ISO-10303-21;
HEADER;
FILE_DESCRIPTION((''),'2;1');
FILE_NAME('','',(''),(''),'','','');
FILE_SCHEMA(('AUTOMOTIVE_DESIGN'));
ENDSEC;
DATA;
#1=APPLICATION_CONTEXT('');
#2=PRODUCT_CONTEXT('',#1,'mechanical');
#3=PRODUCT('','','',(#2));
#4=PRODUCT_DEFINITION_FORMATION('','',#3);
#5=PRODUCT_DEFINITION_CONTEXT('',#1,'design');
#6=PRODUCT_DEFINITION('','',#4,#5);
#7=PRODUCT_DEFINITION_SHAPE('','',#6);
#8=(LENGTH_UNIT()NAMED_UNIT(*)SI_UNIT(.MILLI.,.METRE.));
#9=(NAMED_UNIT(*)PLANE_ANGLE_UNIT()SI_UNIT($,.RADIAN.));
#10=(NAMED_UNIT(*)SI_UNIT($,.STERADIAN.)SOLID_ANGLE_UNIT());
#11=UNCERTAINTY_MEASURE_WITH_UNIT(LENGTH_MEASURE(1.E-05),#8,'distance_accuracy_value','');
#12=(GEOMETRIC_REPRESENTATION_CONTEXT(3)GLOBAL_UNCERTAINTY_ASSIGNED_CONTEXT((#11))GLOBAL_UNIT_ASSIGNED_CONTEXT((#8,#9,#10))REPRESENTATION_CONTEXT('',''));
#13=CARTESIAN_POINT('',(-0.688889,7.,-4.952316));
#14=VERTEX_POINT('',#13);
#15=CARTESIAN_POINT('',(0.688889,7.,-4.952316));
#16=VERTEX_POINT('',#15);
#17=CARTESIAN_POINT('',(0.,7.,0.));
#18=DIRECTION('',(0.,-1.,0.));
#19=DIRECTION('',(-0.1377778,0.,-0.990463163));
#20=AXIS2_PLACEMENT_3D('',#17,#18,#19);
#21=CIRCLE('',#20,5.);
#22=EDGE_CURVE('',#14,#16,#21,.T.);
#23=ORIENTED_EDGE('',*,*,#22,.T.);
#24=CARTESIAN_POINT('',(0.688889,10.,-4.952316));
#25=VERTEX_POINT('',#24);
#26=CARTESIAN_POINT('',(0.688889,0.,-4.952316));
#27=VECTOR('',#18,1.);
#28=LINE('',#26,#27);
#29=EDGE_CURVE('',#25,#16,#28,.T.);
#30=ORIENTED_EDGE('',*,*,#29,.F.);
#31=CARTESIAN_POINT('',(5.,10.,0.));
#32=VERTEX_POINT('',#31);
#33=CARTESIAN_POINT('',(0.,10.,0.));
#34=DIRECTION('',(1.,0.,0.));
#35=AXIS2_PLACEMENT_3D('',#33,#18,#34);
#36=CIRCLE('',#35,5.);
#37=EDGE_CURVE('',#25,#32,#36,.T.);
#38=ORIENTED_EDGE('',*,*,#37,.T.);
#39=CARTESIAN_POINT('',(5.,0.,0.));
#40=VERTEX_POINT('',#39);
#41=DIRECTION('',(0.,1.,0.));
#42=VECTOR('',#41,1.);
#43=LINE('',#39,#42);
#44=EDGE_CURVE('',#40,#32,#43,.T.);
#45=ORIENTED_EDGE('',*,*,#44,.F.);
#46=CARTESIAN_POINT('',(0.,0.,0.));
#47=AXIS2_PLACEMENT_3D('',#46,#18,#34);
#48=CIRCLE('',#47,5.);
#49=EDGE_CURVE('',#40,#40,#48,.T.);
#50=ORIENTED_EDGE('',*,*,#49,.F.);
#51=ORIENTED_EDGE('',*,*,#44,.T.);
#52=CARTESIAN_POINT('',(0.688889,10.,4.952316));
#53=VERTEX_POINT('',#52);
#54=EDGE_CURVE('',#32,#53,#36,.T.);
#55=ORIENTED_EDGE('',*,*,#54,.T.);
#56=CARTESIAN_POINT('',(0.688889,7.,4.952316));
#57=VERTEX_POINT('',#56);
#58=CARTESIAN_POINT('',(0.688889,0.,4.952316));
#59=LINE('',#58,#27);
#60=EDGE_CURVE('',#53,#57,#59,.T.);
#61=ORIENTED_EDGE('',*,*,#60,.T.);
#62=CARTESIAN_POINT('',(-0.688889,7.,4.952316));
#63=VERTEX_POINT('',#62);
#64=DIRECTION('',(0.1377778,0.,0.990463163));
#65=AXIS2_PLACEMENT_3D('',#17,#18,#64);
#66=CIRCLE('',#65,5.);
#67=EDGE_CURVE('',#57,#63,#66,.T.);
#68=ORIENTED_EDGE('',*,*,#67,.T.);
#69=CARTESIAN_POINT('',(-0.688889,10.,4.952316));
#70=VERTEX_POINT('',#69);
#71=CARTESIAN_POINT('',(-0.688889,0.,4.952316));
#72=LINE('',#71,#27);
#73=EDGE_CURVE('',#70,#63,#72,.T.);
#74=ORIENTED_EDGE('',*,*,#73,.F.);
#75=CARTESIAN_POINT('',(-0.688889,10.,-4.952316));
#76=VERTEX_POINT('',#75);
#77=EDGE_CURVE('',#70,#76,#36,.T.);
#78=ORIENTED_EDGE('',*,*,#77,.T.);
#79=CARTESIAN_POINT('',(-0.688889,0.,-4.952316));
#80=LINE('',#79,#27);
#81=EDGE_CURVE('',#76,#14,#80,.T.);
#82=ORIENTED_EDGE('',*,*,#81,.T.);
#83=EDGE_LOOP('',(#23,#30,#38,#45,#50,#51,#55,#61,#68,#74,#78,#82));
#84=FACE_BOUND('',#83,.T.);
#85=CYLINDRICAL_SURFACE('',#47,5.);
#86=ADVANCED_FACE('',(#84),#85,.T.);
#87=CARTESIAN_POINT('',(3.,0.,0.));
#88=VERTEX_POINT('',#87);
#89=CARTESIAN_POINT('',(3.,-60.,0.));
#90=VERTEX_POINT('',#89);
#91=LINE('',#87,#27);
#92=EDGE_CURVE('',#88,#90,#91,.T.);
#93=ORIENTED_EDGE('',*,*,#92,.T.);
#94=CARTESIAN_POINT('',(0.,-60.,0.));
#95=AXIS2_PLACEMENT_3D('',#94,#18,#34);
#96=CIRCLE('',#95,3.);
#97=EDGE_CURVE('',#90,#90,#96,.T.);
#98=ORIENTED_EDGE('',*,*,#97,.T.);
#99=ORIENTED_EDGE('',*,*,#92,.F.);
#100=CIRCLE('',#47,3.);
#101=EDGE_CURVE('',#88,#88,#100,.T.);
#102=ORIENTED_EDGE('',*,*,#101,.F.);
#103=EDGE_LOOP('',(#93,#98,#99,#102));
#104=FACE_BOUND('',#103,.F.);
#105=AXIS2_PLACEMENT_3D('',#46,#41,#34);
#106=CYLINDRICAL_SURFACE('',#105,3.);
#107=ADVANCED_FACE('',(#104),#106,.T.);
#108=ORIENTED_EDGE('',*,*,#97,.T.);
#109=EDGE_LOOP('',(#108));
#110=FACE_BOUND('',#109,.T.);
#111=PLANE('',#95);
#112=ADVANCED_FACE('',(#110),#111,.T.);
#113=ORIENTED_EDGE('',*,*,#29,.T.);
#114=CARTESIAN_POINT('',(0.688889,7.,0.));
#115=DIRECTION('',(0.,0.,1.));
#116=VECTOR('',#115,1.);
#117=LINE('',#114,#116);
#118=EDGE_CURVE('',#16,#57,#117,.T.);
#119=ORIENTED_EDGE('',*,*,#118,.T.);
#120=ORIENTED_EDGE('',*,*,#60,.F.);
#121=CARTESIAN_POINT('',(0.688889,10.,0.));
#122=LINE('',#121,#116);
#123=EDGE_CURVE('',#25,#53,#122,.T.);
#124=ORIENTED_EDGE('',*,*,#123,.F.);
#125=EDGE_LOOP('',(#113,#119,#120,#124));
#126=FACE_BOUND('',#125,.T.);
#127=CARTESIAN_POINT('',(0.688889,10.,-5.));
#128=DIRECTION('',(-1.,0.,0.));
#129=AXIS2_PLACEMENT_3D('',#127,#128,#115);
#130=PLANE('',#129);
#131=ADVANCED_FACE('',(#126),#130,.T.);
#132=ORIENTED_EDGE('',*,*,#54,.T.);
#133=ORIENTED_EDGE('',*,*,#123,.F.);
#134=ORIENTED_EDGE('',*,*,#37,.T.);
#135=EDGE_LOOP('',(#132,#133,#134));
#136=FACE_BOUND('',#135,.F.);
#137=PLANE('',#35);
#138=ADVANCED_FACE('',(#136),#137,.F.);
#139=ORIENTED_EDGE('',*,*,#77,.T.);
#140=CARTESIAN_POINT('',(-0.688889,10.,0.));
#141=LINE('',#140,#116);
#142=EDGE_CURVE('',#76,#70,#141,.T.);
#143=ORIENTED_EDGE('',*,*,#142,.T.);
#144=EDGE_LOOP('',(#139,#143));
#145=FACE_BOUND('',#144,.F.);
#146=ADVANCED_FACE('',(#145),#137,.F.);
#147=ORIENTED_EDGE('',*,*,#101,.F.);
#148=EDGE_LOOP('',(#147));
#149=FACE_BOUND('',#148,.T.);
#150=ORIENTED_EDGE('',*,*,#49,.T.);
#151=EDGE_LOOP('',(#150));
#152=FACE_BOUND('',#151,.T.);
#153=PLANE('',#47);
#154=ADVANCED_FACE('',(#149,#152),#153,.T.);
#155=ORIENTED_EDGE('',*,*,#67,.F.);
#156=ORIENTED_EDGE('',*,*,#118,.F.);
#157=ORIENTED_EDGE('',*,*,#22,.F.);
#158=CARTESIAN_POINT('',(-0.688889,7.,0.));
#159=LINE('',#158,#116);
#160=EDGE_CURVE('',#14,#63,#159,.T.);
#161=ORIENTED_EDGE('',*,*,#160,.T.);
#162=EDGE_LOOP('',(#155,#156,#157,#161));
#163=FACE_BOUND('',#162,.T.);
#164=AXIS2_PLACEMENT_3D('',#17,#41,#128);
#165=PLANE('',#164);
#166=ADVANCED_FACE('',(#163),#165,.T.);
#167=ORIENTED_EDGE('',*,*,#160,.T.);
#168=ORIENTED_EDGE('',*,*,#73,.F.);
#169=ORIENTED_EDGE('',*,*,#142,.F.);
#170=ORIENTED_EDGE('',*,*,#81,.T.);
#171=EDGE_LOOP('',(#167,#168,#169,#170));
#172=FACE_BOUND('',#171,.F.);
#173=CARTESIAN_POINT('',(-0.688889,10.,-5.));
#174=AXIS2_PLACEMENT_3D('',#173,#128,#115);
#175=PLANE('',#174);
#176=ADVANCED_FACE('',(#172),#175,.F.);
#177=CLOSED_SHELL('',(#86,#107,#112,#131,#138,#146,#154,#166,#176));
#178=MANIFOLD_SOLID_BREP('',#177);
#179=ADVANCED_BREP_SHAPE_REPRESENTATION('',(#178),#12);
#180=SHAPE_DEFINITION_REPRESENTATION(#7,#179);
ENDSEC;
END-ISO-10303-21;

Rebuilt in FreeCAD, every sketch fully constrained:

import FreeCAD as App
import Part
import Sketcher
from FreeCAD import Vector


def add_polygon(sketch, points):
    """Adds a closed chain of lines whose ends are joined by coincident constraints."""
    first, n = sketch.GeometryCount, len(points)
    for a, b in zip(points, points[1:] + points[:1]):
        sketch.addGeometry(Part.LineSegment(App.Vector(*a, 0), App.Vector(*b, 0)), False)
    for i in range(n):
        sketch.addConstraint(Sketcher.Constraint("Coincident", first + i, 2, first + (i + 1) % n, 1))

doc = App.newDocument("Part")
body = doc.addObject("PartDesign::Body", "Body")

# Sketch on XZ plane
sketch1 = body.newObject("Sketcher::SketchObject", "Sketch")
sketch1.AttachmentSupport = (doc.getObject("XZ_Plane"), [""])
sketch1.MapMode = "FlatFace"
sketch1.addGeometry(Part.Circle(Vector(0, 0, 0), Vector(0, 0, 1), 3), False)
sketch1.addConstraint([
    Sketcher.Constraint("Coincident", 0, 3, -1, 1),
    Sketcher.Constraint("Diameter", 0, 6.0),
])
pad1 = body.newObject("PartDesign::Pad", "Pad")
pad1.Profile = sketch1
pad1.Length = 60

# Sketch on XZ plane
sketch2 = body.newObject("Sketcher::SketchObject", "Sketch001")
sketch2.AttachmentSupport = (doc.getObject("XZ_Plane"), [""])
sketch2.MapMode = "FlatFace"
sketch2.addGeometry(Part.Circle(Vector(0, 0, 0), Vector(0, 0, 1), 5), False)
sketch2.addConstraint([
    Sketcher.Constraint("Coincident", 0, 3, -1, 1),
    Sketcher.Constraint("Diameter", 0, 10.0),
])
pad2 = body.newObject("PartDesign::Pad", "Pad001")
pad2.Profile = sketch2
pad2.Length = 10
pad2.Reversed = True

# Sketch on XZ plane
sketch3 = body.newObject("Sketcher::SketchObject", "Sketch002")
sketch3.AttachmentSupport = (doc.getObject("XZ_Plane"), [""])
sketch3.MapMode = "FlatFace"
sketch3.AttachmentOffset = App.Placement(Vector(0, 0, -10), App.Rotation())
add_polygon(sketch3, [(0.7, 5), (0.7, -5), (-0.7, -5), (-0.7, 5)])  # lines 0-3
sketch3.addConstraint([
    Sketcher.Constraint("Vertical", 0),
    Sketcher.Constraint("Horizontal", 1),
    Sketcher.Constraint("Vertical", 2),
    Sketcher.Constraint("Horizontal", 3),
    Sketcher.Constraint("Symmetric", 0, 2, 2, 2, -1, 1),
    Sketcher.Constraint("DistanceY", 0, 2, 0, 1, 10.0),
    Sketcher.Constraint("DistanceX", 1, 2, 1, 1, 1.377778),
])
pocket1 = body.newObject("PartDesign::Pocket", "Pocket")
pocket1.Profile = sketch3
pocket1.Length = 3
pocket1.Reversed = True

doc.recompute()
